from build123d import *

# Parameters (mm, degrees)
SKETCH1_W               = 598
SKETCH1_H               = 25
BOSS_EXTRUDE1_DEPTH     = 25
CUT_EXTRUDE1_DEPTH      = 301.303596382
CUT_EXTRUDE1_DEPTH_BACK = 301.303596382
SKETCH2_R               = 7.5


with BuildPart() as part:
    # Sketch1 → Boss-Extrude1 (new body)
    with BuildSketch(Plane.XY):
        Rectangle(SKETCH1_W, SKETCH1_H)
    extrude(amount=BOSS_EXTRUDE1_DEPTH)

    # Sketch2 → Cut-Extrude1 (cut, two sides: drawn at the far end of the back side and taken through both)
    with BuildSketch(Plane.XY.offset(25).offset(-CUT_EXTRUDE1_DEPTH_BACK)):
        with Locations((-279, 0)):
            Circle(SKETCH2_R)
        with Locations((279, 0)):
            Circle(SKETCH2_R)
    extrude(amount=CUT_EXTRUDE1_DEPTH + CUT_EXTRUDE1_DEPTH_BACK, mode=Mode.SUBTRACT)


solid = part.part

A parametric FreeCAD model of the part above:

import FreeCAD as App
import Part
import Sketcher

doc = App.newDocument("Part")
body = doc.addObject("PartDesign::Body", "Body")

# Sketch on XY plane
sketch1 = body.newObject("Sketcher::SketchObject", "Sketch")
sketch1.AttachmentSupport = (doc.getObject("XY_Plane"), [""])
sketch1.MapMode = "FlatFace"
sketch1.addGeometry([
    Part.LineSegment(App.Vector(-299, 12, 0), App.Vector(-299, -12, 0)),
    Part.LineSegment(App.Vector(-299, -12, 0), App.Vector(299, -12, 0)),
    Part.LineSegment(App.Vector(299, -12, 0), App.Vector(299, 12, 0)),
    Part.LineSegment(App.Vector(299, 12, 0), App.Vector(-299, 12, 0)),
], False)
sketch1.addConstraint([
    Sketcher.Constraint("Coincident", 0, 2, 1, 1),
    Sketcher.Constraint("Coincident", 1, 2, 2, 1),
    Sketcher.Constraint("Coincident", 2, 2, 3, 1),
    Sketcher.Constraint("Coincident", 3, 2, 0, 1),
    Sketcher.Constraint("Vertical", 0),
    Sketcher.Constraint("Horizontal", 1),
    Sketcher.Constraint("Vertical", 2),
    Sketcher.Constraint("Horizontal", 3),
    Sketcher.Constraint("Symmetric", 0, 2, 2, 2, -1, 1),
    Sketcher.Constraint("DistanceX", 1, 1, 1, 2, 598.0),
    Sketcher.Constraint("DistanceY", 0, 2, 0, 1, 25.0),
])
pad1 = body.newObject("PartDesign::Pad", "Pad")
pad1.Profile = sketch1
pad1.Length = 25

# Sketch on XY plane
sketch2 = body.newObject("Sketcher::SketchObject", "Sketch001")
sketch2.AttachmentSupport = (doc.getObject("XY_Plane"), [""])
sketch2.MapMode = "FlatFace"
sketch2.AttachmentOffset = App.Placement(App.Vector(0, 0, 25), App.Rotation())
sketch2.addGeometry([
    Part.Circle(App.Vector(-279, 0, 0), App.Vector(0, 0, 1), 8),
    Part.Circle(App.Vector(279, 0, 0), App.Vector(0, 0, 1), 8),
], False)
sketch2.addConstraint([
    Sketcher.Constraint("Equal", 0, 1),
    Sketcher.Constraint("Symmetric", 0, 3, 1, 3, -1, 1),
    Sketcher.Constraint("PointOnObject", 0, 3, -1),
    Sketcher.Constraint("Diameter", 0, 15.0),
    Sketcher.Constraint("DistanceX", 0, 3, -1, 1, 279.0),
])
pocket1 = body.newObject("PartDesign::Pocket", "Pocket")
pocket1.Profile = sketch2
pocket1.Type = "ThroughAll"
pocket1.Midplane = True

doc.recompute()
